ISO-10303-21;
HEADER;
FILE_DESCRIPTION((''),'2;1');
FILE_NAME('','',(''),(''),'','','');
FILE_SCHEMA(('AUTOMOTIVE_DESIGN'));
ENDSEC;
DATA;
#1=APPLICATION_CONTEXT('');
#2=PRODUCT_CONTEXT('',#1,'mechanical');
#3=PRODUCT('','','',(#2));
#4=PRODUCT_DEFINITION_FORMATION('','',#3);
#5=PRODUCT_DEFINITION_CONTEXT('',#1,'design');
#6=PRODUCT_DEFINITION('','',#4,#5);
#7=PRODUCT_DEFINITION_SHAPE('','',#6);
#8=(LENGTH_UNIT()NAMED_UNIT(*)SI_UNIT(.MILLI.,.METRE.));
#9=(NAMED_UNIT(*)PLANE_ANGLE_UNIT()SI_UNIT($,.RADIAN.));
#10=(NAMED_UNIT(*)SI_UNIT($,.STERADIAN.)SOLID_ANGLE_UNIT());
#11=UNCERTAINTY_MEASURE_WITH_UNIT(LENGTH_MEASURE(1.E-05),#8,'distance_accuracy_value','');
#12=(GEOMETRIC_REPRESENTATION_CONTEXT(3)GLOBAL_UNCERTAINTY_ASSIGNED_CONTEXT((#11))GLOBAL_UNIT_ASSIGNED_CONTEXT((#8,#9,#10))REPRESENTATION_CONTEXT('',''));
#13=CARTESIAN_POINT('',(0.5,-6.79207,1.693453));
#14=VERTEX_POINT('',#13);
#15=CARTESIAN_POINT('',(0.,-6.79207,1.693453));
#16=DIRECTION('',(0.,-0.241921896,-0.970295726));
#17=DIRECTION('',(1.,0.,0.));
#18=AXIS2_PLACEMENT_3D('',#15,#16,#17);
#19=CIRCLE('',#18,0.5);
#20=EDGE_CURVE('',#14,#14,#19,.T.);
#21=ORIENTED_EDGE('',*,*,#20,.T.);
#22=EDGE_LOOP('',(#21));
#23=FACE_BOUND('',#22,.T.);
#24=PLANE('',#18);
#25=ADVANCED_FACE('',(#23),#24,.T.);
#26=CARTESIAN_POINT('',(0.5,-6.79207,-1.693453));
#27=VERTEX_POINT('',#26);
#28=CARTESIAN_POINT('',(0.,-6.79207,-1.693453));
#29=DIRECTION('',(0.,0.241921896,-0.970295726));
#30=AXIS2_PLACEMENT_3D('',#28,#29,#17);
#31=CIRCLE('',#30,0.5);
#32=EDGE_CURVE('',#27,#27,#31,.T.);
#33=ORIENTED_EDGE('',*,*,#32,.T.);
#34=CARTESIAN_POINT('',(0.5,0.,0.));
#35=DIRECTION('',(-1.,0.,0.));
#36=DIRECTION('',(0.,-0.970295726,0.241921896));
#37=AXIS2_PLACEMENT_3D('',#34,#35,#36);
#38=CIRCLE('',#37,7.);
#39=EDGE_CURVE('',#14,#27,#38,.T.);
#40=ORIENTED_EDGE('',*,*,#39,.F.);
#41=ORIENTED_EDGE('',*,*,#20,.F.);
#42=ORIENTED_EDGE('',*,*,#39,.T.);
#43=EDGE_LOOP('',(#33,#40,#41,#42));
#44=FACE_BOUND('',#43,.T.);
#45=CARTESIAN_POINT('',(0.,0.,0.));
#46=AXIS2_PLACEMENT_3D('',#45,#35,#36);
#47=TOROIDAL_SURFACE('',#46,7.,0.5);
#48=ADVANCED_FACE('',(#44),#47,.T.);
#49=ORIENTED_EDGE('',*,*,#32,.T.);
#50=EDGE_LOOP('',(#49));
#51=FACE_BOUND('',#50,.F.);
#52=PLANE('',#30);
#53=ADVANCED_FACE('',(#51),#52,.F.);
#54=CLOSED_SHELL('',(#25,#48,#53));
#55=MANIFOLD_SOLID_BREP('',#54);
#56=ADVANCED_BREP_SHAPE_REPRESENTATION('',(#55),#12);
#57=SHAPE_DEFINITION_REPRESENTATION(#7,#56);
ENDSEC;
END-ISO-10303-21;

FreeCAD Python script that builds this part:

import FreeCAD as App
import Part
import Sketcher

V = App.Vector
Q = App.Units.Quantity

doc = App.newDocument("Part")
body = doc.addObject("PartDesign::Body", "Body")

# Sketch on an angled plane
sketch1 = body.newObject("Sketcher::SketchObject", "Sketch")
sketch1.Placement = App.Placement(V(0, 0, 0), App.Rotation(V(1, 0, 0), V(0, -0.970295726, 0.241921896), V(0, -0.241921896, -0.970295726), "ZXY"))
sketch1.addGeometry(Part.Circle(V(0, 7, 0), V(0, 0, 1), 0.5), False)
sketch1.addConstraint(Sketcher.Constraint("PointOnObject", 0, 3, -2))
sketch1.addConstraint(Sketcher.Constraint("Diameter", 0, Q("1 mm")))
sketch1.addConstraint(Sketcher.Constraint("DistanceY", -1, 1, 0, 3, Q("7 mm")))
revolution = body.newObject("PartDesign::Revolution", "Revolution")
revolution.Profile = sketch1
revolution.ReferenceAxis = (sketch1, ["H_Axis"])
revolution.Angle = 332
revolution.Reversed = True

doc.recompute()
